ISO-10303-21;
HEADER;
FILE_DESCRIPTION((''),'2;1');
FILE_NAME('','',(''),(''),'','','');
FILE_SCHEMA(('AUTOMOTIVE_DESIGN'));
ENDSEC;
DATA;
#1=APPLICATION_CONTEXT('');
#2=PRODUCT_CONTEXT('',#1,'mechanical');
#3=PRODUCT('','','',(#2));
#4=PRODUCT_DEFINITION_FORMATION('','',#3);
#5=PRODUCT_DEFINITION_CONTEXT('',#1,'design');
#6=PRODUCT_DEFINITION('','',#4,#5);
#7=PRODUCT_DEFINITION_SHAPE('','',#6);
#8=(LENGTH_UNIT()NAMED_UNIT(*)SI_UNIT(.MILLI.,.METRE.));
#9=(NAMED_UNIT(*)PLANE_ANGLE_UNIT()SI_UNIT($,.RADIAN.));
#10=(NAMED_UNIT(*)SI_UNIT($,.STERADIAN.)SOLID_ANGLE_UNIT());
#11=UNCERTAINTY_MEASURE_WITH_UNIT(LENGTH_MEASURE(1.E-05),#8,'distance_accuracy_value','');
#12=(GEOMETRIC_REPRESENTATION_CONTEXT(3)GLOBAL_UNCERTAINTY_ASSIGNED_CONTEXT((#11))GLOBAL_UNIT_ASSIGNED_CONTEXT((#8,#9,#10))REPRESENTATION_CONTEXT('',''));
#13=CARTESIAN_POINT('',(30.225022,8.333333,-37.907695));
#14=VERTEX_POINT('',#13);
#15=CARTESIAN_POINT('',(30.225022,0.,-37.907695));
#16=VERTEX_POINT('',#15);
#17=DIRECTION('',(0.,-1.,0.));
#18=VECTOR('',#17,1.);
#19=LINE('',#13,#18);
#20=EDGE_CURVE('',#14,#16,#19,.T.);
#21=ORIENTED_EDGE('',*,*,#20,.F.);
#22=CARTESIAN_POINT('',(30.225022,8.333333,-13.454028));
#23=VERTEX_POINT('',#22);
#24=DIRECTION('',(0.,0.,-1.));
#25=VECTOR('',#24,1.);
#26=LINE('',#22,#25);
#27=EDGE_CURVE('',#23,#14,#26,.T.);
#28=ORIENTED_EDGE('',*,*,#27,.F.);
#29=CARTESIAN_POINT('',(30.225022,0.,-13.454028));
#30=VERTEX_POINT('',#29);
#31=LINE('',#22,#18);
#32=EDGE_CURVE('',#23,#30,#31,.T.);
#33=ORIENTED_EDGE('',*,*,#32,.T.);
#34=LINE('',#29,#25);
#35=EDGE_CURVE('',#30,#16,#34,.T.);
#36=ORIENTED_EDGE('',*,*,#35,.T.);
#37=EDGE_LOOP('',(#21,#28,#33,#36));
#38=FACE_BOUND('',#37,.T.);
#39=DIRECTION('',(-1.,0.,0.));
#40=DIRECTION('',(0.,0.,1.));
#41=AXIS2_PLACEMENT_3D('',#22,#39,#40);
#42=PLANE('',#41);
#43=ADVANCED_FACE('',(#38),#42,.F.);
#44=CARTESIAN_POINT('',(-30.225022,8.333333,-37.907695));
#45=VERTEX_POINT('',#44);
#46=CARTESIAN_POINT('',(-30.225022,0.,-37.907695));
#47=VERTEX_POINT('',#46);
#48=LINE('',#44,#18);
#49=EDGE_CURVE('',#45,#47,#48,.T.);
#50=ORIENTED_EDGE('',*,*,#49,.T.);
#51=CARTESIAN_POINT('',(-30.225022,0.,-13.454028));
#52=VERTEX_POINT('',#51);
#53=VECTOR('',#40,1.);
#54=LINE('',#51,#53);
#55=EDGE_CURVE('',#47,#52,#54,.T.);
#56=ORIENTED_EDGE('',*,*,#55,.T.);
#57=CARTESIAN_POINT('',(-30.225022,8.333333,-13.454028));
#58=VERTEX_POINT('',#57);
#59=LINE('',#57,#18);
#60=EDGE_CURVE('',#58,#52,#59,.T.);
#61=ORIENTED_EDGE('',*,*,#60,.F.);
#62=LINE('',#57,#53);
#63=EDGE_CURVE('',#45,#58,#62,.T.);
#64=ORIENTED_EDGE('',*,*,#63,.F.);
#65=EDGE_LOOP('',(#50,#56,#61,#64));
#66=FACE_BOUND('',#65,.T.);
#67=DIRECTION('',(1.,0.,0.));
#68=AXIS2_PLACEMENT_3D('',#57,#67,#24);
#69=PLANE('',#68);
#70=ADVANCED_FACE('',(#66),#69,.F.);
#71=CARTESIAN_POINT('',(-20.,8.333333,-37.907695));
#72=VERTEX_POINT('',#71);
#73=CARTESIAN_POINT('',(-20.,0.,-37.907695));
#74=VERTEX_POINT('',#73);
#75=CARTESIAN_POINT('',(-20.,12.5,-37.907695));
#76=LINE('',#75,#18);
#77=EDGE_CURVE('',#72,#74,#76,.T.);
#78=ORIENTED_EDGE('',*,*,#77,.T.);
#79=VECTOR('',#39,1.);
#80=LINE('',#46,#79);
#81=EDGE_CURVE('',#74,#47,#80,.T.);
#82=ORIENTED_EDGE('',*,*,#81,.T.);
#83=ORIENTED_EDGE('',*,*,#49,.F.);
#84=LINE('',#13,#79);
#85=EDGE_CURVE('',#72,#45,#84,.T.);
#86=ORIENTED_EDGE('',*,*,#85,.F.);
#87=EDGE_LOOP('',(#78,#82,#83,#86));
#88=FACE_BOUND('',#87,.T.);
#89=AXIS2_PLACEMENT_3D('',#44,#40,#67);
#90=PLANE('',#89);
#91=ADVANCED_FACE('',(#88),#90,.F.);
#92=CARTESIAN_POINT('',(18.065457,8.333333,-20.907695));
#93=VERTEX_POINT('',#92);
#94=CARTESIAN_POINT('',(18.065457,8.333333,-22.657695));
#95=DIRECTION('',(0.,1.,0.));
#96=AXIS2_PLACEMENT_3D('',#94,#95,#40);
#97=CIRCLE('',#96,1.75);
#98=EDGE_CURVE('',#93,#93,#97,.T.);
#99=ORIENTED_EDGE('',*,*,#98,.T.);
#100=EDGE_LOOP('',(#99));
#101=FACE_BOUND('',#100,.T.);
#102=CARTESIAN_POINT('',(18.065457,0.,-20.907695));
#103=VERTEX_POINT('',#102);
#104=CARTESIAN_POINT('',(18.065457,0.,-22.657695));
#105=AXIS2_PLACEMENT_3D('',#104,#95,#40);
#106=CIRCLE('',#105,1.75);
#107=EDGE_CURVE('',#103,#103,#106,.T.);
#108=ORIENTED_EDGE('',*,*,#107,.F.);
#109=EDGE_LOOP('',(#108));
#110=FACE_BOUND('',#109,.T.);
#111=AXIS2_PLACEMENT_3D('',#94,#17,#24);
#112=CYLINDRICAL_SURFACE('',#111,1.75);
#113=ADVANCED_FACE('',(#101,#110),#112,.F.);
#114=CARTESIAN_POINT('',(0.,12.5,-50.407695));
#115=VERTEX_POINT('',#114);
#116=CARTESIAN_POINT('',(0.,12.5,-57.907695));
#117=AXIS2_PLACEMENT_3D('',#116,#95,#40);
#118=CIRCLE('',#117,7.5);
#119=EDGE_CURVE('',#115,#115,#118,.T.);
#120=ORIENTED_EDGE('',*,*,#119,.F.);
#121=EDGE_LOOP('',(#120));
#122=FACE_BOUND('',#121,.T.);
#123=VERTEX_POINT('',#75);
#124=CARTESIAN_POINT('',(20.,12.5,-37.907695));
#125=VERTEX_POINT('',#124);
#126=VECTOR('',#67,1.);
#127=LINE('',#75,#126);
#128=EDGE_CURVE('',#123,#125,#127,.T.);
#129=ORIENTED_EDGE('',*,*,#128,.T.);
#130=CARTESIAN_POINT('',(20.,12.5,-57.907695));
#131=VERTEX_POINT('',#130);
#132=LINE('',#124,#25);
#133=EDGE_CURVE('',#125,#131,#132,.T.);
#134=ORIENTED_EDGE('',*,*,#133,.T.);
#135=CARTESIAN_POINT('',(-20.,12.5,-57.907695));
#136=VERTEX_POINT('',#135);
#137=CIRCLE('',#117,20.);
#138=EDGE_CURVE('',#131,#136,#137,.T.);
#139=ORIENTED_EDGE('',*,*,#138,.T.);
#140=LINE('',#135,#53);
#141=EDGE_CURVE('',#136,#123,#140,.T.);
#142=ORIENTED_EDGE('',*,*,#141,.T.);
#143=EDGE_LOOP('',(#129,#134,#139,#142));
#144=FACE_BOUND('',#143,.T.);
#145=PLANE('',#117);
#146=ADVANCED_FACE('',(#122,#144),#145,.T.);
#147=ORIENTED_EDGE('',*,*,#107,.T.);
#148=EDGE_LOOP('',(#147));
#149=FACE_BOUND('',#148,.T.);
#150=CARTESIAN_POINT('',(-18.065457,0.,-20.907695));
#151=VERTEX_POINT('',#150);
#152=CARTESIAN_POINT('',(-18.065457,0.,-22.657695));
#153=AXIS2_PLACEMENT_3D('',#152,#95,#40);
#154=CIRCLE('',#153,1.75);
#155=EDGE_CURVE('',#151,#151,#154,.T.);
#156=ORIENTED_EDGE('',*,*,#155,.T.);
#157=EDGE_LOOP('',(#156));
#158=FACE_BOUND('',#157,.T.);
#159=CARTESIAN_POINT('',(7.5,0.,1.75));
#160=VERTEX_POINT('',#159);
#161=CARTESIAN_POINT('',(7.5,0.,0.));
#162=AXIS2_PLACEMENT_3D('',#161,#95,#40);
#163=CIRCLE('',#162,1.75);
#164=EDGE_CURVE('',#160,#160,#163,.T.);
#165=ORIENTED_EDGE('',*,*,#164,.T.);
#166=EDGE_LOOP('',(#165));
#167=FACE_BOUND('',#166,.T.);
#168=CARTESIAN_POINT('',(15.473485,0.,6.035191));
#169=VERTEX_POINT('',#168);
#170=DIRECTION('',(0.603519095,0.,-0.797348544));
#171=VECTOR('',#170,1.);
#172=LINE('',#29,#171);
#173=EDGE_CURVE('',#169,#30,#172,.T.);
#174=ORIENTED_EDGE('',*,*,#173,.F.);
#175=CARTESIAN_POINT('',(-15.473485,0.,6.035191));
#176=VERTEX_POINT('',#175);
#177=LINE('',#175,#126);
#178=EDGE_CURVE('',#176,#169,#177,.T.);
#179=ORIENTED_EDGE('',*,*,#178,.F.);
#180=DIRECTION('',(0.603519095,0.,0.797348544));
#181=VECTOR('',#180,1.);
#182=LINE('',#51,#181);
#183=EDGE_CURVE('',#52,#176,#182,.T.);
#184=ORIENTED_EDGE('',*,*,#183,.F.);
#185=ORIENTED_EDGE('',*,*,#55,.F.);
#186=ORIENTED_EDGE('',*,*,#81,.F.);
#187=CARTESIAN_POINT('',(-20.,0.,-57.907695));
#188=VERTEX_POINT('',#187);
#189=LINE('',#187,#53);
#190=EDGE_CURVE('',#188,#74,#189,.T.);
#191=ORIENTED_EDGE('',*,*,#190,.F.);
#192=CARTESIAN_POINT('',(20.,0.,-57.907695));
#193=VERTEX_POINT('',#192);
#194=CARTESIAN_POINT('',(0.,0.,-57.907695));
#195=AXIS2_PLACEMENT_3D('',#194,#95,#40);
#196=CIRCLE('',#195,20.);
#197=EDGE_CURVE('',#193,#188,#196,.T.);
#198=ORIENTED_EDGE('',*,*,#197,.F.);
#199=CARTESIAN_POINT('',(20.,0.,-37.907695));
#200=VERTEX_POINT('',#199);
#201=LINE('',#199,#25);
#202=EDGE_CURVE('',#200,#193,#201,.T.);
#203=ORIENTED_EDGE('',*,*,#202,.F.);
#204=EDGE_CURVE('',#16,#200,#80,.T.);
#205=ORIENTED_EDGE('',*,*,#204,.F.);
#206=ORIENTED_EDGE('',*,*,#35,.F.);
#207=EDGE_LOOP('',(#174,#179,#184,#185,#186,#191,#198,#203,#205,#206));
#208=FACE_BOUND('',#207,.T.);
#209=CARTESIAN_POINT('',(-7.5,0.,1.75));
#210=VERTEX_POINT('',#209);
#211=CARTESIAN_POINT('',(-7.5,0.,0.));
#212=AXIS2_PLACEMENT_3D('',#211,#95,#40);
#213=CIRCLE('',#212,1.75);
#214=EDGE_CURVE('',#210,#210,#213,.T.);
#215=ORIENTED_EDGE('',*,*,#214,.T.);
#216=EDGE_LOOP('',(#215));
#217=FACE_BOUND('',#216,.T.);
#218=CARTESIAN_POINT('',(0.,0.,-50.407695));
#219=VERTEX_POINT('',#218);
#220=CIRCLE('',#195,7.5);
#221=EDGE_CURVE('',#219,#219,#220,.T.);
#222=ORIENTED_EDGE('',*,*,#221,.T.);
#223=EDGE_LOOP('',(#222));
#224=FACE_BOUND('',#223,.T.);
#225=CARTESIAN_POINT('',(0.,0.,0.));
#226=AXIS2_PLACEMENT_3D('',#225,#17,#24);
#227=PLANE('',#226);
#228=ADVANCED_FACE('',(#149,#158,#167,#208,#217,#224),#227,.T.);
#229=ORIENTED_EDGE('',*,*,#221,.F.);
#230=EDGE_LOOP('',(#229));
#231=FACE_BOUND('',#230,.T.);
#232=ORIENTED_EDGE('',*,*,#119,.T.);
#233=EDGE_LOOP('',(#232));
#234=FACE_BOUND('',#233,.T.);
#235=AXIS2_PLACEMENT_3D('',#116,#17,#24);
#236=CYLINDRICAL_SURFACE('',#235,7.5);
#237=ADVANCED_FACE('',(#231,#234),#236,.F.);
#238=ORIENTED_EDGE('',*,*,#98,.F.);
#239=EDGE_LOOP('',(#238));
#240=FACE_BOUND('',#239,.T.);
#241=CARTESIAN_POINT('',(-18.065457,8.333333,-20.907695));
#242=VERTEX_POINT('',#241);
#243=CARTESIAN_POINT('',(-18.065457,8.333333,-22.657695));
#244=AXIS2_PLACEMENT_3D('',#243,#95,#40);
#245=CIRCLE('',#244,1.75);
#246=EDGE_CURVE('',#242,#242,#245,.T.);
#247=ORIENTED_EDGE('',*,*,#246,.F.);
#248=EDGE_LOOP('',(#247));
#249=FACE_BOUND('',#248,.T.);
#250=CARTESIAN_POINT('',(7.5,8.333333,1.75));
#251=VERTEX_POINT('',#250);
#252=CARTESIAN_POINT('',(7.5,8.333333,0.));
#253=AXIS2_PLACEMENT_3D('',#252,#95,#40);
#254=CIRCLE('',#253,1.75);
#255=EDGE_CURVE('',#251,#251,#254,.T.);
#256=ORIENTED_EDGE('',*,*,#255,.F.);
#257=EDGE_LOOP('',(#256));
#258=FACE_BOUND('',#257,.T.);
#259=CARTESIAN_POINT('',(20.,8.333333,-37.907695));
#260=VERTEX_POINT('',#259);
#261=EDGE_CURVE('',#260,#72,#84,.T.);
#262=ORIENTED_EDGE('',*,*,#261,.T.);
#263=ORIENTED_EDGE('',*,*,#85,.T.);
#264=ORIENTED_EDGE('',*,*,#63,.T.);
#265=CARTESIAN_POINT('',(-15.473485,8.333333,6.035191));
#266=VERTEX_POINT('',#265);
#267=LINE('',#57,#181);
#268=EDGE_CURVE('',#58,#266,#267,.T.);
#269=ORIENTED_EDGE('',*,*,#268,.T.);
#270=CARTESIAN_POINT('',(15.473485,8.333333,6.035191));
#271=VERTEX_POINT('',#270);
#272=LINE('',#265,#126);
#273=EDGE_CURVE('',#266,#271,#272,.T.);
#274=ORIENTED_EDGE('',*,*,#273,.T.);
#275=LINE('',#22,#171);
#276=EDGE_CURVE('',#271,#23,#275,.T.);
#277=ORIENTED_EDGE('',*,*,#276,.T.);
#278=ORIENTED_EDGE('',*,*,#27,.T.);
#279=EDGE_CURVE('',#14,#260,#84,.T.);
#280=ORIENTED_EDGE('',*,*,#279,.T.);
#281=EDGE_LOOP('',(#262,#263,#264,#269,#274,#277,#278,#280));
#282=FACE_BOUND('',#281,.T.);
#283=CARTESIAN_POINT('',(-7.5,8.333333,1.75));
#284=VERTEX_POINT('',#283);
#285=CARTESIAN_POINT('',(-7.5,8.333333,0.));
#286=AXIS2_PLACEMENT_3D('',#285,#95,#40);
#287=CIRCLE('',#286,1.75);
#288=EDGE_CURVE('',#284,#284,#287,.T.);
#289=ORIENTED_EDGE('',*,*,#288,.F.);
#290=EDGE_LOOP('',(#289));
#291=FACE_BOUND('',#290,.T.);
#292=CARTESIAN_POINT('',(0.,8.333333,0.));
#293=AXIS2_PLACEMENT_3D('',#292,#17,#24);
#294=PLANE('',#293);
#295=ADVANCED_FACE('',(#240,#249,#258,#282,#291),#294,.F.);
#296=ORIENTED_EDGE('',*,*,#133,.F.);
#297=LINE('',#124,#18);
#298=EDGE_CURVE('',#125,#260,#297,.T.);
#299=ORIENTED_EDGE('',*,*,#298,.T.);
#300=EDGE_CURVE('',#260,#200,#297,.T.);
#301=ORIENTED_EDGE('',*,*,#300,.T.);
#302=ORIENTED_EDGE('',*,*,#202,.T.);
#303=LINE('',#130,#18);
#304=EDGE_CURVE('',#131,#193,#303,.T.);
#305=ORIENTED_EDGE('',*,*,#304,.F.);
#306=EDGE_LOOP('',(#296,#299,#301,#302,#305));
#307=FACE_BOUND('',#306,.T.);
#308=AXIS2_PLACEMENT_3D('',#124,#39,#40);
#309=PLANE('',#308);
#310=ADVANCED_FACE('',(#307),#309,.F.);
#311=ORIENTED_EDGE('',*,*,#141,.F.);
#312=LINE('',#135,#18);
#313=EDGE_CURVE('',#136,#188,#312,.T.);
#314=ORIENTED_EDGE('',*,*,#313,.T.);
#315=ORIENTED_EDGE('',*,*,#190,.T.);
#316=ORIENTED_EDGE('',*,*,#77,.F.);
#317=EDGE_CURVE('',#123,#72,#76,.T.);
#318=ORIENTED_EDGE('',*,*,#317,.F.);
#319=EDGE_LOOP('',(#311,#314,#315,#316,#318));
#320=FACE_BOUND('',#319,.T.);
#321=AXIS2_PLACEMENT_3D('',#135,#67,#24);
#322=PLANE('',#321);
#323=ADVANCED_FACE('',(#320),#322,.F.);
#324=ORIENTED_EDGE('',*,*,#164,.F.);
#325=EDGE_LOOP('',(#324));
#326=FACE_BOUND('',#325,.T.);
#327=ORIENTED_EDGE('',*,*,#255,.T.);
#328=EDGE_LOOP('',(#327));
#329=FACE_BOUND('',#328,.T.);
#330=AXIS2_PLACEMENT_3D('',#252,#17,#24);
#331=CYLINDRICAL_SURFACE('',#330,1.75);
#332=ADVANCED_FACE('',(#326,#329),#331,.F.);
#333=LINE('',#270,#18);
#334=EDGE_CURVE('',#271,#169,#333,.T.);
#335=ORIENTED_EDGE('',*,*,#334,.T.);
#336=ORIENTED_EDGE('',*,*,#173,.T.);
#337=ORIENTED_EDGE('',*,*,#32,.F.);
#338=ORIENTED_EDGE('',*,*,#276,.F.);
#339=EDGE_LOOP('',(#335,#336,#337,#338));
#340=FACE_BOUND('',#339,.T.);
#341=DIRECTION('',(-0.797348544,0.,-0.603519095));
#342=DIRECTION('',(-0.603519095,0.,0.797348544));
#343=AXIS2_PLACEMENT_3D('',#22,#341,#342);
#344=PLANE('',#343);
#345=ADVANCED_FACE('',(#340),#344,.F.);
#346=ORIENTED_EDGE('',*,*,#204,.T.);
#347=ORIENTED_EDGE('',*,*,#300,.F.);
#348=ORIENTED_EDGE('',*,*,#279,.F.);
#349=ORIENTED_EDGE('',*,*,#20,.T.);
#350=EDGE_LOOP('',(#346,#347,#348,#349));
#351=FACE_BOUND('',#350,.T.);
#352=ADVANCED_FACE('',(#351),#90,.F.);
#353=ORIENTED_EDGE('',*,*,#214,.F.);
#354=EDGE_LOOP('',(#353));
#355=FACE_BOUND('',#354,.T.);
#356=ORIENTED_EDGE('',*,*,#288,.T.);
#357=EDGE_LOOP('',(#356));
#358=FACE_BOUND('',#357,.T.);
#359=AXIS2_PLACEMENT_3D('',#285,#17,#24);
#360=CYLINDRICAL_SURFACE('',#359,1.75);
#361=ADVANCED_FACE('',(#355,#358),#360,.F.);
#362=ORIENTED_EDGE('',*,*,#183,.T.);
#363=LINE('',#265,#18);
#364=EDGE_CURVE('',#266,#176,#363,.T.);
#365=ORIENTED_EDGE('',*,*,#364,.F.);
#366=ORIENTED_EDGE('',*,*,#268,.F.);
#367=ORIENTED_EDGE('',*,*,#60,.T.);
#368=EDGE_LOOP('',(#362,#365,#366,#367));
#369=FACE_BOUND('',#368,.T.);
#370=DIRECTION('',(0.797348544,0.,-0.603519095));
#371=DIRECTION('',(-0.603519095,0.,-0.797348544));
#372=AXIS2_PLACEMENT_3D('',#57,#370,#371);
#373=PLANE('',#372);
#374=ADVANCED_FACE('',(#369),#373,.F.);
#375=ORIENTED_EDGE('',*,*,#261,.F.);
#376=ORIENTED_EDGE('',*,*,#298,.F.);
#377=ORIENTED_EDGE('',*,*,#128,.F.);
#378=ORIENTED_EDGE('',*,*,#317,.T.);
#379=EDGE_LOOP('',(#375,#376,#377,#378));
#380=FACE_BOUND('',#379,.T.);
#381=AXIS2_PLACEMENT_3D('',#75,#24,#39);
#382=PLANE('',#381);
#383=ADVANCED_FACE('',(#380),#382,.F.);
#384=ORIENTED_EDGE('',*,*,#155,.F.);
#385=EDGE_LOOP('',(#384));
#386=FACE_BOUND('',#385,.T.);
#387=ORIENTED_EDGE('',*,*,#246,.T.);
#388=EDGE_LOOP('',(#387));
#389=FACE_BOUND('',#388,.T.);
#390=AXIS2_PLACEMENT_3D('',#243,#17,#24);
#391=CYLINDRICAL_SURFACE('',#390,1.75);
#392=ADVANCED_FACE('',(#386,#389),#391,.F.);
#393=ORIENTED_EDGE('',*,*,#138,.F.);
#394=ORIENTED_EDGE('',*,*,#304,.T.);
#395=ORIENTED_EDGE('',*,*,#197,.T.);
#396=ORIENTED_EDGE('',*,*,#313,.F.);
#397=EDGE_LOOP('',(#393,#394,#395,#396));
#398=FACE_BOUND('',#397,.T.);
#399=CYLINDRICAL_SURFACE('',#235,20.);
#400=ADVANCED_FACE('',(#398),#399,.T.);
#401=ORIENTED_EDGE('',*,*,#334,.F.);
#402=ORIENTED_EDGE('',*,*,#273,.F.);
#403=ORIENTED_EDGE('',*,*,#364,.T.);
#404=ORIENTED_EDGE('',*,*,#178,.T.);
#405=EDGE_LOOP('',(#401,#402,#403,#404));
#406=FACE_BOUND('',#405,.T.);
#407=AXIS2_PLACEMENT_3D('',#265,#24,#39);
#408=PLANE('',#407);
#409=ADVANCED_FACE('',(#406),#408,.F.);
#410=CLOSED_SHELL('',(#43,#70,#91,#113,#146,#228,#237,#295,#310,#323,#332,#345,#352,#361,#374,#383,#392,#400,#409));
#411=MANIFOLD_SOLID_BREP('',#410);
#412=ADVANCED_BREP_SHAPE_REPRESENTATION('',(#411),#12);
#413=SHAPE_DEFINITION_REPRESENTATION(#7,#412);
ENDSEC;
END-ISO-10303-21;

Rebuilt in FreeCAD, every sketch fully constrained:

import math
import FreeCAD as App
import Part
import Sketcher
from FreeCAD import Vector

doc = App.newDocument("Part")
params = doc.addObject("Spreadsheet::Sheet", "Params")
for row, (alias, value) in enumerate([
    ("sketch1_diameter", "3.5 mm"),
    ("pad1_length", "8.333333 mm"),
    ("sketch2_diameter", "15 mm"),
    ("sketch2_radius", "20 mm"),
    ("sketch2_height", "20 mm"),
    ("pad2_length", "12.5 mm"),
], start=1):
    params.set(f"A{row}", alias)
    params.set(f"B{row}", "=" + value)
    params.setAlias(f"B{row}", alias)

body = doc.addObject("PartDesign::Body", "Body")

sketch1 = body.newObject("Sketcher::SketchObject", "Sketch")
sketch1.AttachmentSupport = (doc.getObject("XZ_Plane"), [""])
sketch1.MapMode = "FlatFace"
sketch1.addGeometry([
    Part.LineSegment(Vector(-30.2, -13.5, 0), Vector(-15.5, 6, 0)),
    Part.LineSegment(Vector(-15.5, 6, 0), Vector(15.5, 6, 0)),
    Part.LineSegment(Vector(15.5, 6, 0), Vector(30.2, -13.5, 0)),
    Part.LineSegment(Vector(30.2, -13.5, 0), Vector(30.2, -37.9, 0)),
    Part.LineSegment(Vector(30.2, -37.9, 0), Vector(-30.2, -37.9, 0)),
    Part.LineSegment(Vector(-30.2, -37.9, 0), Vector(-30.2, -13.5, 0)),
    Part.Circle(Vector(-7.5, 0, 0), Vector(0, 0, 1), 1.8),
    Part.Circle(Vector(7.5, 0, 0), Vector(0, 0, 1), 1.8),
    Part.Circle(Vector(-18.1, -22.7, 0), Vector(0, 0, 1), 1.8),
    Part.Circle(Vector(18.1, -22.7, 0), Vector(0, 0, 1), 1.8),
], False)
sketch1.addConstraint([
    Sketcher.Constraint("Coincident", 0, 2, 1, 1),
    Sketcher.Constraint("Coincident", 1, 2, 2, 1),
    Sketcher.Constraint("Coincident", 2, 2, 3, 1),
    Sketcher.Constraint("Coincident", 3, 2, 4, 1),
    Sketcher.Constraint("Coincident", 4, 2, 5, 1),
    Sketcher.Constraint("Coincident", 5, 2, 0, 1),
    Sketcher.Constraint("Horizontal", 1),
    Sketcher.Constraint("Vertical", 3),
    Sketcher.Constraint("Horizontal", 4),
    Sketcher.Constraint("Vertical", 5),
    Sketcher.Constraint("Equal", 6, 7),
    Sketcher.Constraint("Equal", 7, 8),
    Sketcher.Constraint("Equal", 8, 9),
    Sketcher.Constraint("Symmetric", 6, 3, 7, 3, -1, 1),
    Sketcher.Constraint("Symmetric", 8, 3, 9, 3, -2),
    Sketcher.Constraint("Symmetric", 2, 2, 5, 2, -2),
    Sketcher.Constraint("PointOnObject", 6, 3, -1),
    Sketcher.Constraint("Equal", 0, 2),
    Sketcher.Constraint("Diameter", 6, 3.5),
    Sketcher.Constraint("DistanceX", 6, 3, 7, 3, 15.0),
    Sketcher.Constraint("DistanceY", 3, 2, 9, 3, 15.25),
    Sketcher.Constraint("DistanceX", 1, 1, 1, 2, 30.946971),
    Sketcher.Constraint("DistanceX", 4, 2, 4, 1, 60.450044),
    Sketcher.Constraint("DistanceY", 3, 2, 3, 1, 24.453666),
    Sketcher.Constraint("DistanceY", -1, 1, 0, 2, 6.035191),
    Sketcher.Constraint("DistanceY", 2, 2, -1, 1, 13.454028),
    Sketcher.Constraint("DistanceX", 8, 3, 0, 2, 2.591971),
])
sketch1.setExpression("Constraints[18]", "Params.sketch1_diameter")
pad1 = body.newObject("PartDesign::Pad", "Pad")
pad1.Profile = sketch1
pad1.setExpression("Length", "Params.pad1_length")
pad1.Reversed = True

sketch2 = body.newObject("Sketcher::SketchObject", "Sketch001")
sketch2.AttachmentSupport = (doc.getObject("XZ_Plane"), [""])
sketch2.MapMode = "FlatFace"
sketch2.addGeometry([
    Part.LineSegment(Vector(-20, -58, 0), Vector(-20, -38, 0)),
    Part.LineSegment(Vector(-20, -38, 0), Vector(20, -38, 0)),
    Part.LineSegment(Vector(20, -38, 0), Vector(20, -58, 0)),
    Part.ArcOfCircle(Part.Circle(Vector(0, -58, 0), Vector(0, 0, 1), 20), math.radians(180), math.radians(360)),
    Part.Circle(Vector(0, -58, 0), Vector(0, 0, 1), 8),
], False)
sketch2.addConstraint([
    Sketcher.Constraint("Coincident", 0, 2, 1, 1),
    Sketcher.Constraint("Coincident", 1, 2, 2, 1),
    Sketcher.Constraint("Tangent", 2, 2, 3, 2),
    Sketcher.Constraint("Tangent", 3, 1, 0, 1),
    Sketcher.Constraint("Vertical", 0),
    Sketcher.Constraint("Horizontal", 1),
    Sketcher.Constraint("Vertical", 2),
    Sketcher.Constraint("Coincident", 4, 3, 3, 3),
    Sketcher.Constraint("PointOnObject", 3, 3, -2),
    Sketcher.Constraint("Diameter", 4, 15.0),
    Sketcher.Constraint("Radius", 3, 20.0),
    Sketcher.Constraint("DistanceY", 0, 1, 0, 2, 20.0),
    Sketcher.Constraint("DistanceY", 3, 3, -1, 1, 57.907695),
])
sketch2.setExpression("Constraints[9]", "Params.sketch2_diameter")
sketch2.setExpression("Constraints[10]", "Params.sketch2_radius")
sketch2.setExpression("Constraints[11]", "Params.sketch2_height")
pad2 = body.newObject("PartDesign::Pad", "Pad001")
pad2.Profile = sketch2
pad2.setExpression("Length", "Params.pad2_length")
pad2.Reversed = True

doc.recompute()
